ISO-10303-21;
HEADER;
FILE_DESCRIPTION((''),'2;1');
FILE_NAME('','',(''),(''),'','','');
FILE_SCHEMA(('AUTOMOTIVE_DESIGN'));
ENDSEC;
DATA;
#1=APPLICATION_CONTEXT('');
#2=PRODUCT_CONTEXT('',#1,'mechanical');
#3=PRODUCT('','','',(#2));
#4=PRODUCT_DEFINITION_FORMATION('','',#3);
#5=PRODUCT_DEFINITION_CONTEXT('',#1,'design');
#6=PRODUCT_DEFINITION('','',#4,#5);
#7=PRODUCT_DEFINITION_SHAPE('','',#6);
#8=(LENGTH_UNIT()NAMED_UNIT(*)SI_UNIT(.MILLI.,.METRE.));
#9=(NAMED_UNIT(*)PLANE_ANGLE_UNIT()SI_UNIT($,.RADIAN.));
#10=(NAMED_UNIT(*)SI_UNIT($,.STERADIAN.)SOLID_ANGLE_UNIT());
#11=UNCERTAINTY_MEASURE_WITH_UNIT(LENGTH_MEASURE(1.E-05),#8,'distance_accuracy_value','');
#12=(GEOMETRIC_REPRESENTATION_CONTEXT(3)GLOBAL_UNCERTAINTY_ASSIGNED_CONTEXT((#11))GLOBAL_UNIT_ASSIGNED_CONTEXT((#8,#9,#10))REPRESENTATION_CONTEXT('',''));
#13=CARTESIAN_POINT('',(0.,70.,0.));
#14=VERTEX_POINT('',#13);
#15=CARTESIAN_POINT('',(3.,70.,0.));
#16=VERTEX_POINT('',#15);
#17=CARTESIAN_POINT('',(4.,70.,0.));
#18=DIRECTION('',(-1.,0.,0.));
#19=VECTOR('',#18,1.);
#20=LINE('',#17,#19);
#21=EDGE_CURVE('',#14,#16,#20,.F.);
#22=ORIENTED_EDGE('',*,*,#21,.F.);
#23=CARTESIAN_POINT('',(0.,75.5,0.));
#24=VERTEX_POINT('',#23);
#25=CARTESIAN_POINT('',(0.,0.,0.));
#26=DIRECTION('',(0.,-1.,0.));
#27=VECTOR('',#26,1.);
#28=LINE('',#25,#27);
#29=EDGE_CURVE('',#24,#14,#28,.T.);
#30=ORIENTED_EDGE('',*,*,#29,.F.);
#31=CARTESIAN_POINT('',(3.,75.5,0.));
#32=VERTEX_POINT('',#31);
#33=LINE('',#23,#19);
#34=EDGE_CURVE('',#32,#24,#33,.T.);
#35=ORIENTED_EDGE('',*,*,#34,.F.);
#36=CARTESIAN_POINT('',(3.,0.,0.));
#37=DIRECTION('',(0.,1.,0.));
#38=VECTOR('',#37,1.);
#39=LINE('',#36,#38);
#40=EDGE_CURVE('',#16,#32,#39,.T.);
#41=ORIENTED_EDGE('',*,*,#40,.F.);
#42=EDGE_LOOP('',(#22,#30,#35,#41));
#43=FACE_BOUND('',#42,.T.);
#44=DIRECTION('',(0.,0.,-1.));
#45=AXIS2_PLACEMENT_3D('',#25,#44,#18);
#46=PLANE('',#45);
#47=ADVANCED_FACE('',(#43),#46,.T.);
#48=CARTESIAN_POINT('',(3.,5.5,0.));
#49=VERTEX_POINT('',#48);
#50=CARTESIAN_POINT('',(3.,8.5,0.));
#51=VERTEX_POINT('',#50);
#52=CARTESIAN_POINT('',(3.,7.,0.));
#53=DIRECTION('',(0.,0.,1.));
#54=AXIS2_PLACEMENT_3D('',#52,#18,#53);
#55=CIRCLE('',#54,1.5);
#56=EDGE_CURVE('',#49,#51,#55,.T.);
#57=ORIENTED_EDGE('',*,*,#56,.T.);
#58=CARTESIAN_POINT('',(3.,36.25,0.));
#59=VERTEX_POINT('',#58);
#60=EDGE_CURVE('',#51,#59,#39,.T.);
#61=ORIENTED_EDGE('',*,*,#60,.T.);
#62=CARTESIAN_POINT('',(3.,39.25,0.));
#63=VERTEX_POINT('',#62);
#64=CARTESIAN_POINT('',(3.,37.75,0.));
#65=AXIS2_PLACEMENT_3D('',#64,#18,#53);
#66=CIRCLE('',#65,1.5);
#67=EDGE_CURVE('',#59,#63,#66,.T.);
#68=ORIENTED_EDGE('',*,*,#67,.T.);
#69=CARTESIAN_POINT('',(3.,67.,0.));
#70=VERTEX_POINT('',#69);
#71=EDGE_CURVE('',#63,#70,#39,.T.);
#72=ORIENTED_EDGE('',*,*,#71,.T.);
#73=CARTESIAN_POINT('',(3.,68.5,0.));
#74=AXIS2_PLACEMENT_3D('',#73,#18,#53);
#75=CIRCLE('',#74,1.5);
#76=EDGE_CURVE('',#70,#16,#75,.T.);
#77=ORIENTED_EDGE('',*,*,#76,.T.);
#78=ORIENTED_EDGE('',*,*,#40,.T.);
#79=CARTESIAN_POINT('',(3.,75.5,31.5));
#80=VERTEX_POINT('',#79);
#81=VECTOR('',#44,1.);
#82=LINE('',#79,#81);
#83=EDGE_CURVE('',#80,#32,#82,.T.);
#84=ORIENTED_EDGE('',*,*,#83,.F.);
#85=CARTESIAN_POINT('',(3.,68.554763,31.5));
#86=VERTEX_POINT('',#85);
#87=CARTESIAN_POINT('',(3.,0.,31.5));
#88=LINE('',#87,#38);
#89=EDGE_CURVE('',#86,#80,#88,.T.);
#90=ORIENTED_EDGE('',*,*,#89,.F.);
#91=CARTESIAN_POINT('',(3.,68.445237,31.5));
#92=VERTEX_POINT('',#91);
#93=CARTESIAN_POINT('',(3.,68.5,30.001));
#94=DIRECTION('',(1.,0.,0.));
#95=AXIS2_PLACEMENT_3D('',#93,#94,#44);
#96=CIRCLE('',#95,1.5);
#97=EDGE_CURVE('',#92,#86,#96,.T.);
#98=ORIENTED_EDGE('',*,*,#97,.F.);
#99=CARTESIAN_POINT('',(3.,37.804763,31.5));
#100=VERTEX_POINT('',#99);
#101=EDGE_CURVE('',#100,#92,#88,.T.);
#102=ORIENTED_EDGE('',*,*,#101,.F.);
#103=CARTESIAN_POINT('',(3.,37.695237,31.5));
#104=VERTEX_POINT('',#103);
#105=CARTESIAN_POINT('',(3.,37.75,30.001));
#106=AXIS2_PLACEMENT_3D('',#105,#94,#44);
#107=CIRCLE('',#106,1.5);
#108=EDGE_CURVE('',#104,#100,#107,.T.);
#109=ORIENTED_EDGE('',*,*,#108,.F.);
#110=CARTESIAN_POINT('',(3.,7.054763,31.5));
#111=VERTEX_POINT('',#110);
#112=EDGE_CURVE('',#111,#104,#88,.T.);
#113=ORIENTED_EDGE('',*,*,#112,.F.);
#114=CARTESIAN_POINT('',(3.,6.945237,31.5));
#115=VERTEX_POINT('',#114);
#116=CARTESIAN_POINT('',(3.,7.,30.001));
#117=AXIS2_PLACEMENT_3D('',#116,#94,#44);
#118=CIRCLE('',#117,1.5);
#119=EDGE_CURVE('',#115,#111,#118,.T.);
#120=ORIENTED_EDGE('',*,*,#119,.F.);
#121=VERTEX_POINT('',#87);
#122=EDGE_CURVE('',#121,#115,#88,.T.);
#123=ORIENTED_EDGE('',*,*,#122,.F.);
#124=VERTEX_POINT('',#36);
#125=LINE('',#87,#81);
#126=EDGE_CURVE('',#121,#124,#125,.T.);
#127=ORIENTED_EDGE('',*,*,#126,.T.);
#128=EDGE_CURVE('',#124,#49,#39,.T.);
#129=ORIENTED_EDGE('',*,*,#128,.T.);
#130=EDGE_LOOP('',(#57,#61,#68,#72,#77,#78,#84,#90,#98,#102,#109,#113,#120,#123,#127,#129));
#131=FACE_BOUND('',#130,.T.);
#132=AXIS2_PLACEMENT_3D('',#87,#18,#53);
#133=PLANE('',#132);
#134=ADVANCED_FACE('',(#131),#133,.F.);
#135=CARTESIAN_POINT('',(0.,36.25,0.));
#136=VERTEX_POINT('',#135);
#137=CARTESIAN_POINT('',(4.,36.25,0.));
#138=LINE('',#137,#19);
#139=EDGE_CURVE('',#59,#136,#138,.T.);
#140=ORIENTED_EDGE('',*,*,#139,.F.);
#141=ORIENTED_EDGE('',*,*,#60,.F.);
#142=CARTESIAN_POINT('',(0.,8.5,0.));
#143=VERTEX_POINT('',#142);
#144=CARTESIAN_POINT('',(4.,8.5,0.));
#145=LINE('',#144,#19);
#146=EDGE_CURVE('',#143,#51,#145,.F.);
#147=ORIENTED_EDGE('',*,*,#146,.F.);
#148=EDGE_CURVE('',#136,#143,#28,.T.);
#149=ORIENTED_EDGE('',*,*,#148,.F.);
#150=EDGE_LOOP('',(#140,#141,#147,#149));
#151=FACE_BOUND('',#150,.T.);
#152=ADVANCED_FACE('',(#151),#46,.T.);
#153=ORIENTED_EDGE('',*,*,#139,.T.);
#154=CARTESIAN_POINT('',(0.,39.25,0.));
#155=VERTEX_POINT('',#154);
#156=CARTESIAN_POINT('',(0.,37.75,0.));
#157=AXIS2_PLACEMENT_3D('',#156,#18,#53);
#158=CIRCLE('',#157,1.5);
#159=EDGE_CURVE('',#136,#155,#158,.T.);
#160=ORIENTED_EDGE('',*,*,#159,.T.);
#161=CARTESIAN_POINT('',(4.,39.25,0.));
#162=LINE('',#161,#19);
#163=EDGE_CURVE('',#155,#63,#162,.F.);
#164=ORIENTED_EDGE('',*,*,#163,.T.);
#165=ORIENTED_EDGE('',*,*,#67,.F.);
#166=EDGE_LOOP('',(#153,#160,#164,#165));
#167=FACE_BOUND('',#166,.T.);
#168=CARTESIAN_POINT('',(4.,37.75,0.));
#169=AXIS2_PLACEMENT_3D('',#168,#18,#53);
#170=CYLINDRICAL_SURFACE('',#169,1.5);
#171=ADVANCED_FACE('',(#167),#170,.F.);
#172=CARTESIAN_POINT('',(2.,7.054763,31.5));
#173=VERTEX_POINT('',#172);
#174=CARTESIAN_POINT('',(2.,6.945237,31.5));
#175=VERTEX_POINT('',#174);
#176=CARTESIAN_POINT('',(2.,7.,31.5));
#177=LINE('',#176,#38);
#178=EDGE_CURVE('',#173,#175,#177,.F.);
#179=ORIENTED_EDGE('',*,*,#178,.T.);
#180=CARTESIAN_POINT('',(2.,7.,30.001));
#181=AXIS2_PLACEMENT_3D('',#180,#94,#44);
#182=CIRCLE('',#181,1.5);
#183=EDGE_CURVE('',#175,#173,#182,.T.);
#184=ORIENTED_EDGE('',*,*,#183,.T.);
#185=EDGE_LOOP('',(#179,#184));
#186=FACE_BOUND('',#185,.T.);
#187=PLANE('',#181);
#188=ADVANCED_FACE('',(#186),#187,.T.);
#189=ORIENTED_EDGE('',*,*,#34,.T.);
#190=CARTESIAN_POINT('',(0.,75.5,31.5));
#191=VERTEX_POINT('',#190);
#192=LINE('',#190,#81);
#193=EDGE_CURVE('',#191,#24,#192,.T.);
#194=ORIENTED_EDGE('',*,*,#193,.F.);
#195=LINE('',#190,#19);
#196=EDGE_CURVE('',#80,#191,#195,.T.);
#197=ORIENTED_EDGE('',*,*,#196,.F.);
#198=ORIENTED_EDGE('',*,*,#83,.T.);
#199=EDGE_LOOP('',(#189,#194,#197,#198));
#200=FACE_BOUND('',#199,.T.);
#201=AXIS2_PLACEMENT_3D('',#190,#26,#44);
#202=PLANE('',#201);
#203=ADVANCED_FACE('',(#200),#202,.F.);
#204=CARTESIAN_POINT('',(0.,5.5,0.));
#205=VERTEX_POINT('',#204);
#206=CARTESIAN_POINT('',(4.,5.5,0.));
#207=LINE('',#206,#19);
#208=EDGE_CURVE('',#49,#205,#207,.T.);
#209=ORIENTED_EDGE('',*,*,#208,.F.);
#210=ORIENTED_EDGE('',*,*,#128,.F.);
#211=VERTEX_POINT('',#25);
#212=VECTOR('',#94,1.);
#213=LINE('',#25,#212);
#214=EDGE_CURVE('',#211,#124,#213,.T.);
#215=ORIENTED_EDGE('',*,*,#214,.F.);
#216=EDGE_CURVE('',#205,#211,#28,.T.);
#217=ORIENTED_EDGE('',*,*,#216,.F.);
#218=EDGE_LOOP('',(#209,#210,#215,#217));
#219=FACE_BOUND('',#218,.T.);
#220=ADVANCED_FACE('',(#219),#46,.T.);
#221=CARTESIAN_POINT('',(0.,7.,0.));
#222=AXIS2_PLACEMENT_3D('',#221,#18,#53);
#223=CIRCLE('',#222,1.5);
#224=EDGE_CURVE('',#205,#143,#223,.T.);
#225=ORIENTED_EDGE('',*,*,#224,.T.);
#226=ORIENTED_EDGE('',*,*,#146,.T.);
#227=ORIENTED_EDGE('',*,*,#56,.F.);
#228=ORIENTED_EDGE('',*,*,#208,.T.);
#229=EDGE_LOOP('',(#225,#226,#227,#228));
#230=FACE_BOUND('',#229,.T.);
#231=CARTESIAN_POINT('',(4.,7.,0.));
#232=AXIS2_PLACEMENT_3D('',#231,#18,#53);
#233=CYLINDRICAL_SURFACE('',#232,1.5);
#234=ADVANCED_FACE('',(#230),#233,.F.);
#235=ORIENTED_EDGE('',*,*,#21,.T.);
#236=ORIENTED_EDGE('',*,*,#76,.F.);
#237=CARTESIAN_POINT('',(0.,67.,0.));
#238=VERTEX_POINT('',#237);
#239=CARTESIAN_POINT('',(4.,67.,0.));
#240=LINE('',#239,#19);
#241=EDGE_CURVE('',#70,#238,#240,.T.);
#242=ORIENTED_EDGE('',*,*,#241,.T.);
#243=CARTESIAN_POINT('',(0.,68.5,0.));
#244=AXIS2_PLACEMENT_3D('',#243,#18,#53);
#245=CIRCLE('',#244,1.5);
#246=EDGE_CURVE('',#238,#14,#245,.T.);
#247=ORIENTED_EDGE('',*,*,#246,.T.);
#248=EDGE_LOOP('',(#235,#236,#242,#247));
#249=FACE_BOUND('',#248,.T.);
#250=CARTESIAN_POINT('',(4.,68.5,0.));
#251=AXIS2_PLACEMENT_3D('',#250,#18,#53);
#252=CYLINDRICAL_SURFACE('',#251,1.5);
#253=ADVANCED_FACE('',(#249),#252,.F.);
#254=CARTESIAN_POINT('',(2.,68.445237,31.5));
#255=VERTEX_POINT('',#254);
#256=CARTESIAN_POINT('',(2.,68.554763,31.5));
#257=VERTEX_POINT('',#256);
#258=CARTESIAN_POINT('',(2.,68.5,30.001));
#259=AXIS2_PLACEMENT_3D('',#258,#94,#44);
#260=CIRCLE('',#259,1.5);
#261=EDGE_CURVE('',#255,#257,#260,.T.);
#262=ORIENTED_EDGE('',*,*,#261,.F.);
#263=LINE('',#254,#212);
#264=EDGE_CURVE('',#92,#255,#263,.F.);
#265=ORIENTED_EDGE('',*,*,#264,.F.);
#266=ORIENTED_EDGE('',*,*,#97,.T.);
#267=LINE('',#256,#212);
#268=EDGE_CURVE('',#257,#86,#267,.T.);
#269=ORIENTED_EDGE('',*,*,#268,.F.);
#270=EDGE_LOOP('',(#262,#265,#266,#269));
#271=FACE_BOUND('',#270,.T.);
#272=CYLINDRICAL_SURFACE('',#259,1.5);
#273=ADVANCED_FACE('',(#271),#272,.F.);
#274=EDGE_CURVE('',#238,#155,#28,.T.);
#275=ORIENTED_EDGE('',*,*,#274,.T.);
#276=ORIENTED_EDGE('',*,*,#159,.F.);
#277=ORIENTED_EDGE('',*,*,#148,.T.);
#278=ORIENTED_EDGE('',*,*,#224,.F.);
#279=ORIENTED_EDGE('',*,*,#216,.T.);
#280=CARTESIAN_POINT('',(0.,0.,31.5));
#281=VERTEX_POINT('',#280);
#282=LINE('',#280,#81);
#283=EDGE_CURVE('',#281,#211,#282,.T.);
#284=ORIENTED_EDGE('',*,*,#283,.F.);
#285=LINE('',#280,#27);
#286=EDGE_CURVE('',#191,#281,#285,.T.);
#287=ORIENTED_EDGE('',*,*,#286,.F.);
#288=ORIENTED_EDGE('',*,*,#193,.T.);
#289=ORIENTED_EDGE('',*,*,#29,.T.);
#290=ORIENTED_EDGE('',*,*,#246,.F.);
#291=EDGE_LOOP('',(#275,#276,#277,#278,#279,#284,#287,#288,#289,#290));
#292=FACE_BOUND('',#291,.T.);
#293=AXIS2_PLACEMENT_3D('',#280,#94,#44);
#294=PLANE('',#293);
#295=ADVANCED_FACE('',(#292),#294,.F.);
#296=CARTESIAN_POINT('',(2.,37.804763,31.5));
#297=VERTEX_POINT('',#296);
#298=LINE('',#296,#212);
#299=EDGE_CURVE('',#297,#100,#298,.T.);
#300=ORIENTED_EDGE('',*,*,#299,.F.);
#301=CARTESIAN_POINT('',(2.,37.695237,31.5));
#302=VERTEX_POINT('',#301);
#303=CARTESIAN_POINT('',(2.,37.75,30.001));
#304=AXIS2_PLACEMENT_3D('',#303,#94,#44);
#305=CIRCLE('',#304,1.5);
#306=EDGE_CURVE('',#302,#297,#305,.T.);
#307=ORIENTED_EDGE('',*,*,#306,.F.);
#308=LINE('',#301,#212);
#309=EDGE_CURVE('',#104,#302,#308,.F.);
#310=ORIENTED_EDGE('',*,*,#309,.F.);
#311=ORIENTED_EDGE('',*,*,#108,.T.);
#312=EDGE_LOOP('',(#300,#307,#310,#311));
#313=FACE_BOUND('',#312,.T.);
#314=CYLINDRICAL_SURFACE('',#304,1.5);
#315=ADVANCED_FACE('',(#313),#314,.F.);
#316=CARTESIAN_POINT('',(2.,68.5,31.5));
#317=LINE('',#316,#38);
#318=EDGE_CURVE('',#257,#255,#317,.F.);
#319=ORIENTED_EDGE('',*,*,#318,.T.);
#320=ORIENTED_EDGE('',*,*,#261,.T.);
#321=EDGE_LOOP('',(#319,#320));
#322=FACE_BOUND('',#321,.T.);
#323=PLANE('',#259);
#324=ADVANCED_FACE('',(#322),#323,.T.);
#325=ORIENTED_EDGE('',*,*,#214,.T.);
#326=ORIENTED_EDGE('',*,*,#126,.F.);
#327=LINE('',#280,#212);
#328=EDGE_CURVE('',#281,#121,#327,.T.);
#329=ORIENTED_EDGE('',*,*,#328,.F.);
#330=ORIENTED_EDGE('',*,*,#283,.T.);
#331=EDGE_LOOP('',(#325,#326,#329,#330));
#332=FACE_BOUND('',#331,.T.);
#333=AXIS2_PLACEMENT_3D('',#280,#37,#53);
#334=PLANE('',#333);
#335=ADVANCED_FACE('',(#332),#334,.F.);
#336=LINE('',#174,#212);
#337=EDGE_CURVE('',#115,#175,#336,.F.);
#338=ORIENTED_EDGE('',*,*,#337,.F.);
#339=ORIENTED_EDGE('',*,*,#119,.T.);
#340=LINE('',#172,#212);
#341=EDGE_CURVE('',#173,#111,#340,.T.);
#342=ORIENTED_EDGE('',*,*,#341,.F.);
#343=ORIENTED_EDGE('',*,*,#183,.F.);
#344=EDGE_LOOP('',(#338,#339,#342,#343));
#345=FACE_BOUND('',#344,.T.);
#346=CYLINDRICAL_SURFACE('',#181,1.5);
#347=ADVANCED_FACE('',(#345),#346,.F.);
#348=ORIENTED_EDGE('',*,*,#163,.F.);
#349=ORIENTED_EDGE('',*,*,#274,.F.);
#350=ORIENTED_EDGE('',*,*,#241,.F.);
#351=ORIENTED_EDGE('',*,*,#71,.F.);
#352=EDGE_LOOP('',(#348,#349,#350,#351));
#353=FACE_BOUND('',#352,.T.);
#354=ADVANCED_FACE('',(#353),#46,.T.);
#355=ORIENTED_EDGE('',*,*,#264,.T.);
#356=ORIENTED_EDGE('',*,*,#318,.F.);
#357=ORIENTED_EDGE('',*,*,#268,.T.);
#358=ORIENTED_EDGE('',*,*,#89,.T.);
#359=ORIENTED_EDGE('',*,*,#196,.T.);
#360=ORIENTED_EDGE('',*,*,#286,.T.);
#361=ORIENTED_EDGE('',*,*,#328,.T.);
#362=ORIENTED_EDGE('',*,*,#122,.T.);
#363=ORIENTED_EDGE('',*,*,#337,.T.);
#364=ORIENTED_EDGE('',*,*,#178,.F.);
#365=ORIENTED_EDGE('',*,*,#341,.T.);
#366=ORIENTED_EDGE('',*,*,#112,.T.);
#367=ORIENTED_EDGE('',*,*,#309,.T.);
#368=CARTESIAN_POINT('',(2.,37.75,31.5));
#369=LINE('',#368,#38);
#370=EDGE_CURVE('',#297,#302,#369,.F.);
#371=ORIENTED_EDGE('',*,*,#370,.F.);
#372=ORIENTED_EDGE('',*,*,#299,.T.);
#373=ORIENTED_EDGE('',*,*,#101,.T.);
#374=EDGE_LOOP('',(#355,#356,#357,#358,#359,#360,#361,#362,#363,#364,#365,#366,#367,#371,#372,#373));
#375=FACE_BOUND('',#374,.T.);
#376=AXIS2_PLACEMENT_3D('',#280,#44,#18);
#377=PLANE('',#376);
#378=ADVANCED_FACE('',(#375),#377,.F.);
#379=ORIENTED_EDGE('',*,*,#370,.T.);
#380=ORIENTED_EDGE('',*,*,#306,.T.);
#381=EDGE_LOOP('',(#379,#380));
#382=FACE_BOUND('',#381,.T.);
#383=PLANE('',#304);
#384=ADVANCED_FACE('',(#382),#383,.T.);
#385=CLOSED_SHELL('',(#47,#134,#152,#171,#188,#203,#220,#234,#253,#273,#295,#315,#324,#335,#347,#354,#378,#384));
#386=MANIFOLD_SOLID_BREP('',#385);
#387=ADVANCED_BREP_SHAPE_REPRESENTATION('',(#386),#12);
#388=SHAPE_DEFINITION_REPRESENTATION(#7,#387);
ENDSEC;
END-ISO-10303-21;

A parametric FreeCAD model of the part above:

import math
import FreeCAD as App
import Part
import Sketcher
from FreeCAD import Vector
Q = App.Units.Quantity

doc = App.newDocument("Part")
params = doc.addObject("Spreadsheet::Sheet", "Params")
for row, (alias, value) in enumerate([
    ("sketch1_width", "3 mm"),
    ("sketch1_height", "74 mm"),
    ("pad1_length", "31.5 mm"),
    ("sketch2_width", "3 mm"),
    ("sketch2_height", "1.5 mm"),
    ("pad2_length", "31.5 mm"),
    ("sketch3_diameter", "3 mm"),
    ("pocket1_length", "1 mm"),
    ("sketch4_radius", "1.5 mm"),
    ("pocket2_length", "4 mm"),
], start=1):
    params.set(f"A{row}", alias)
    params.set(f"B{row}", "=" + value)
    params.setAlias(f"B{row}", alias)

body = doc.addObject("PartDesign::Body", "Body")

# Sketch on XY plane
sketch1 = body.newObject("Sketcher::SketchObject", "Sketch")
sketch1.AttachmentSupport = (doc.getObject("XY_Plane"), [""])
sketch1.MapMode = "FlatFace"
sketch1.addGeometry([
    Part.LineSegment(Vector(0, 74, 0), Vector(0, 0, 0)),
    Part.LineSegment(Vector(0, 0, 0), Vector(3, 0, 0)),
    Part.LineSegment(Vector(3, 0, 0), Vector(3, 74, 0)),
    Part.LineSegment(Vector(3, 74, 0), Vector(0, 74, 0)),
], False)
sketch1.addConstraint([
    Sketcher.Constraint("Coincident", 0, 2, 1, 1),
    Sketcher.Constraint("Coincident", 1, 2, 2, 1),
    Sketcher.Constraint("Coincident", 2, 2, 3, 1),
    Sketcher.Constraint("Coincident", 3, 2, 0, 1),
    Sketcher.Constraint("Vertical", 0),
    Sketcher.Constraint("Horizontal", 1),
    Sketcher.Constraint("Vertical", 2),
    Sketcher.Constraint("Horizontal", 3),
    Sketcher.Constraint("Coincident", 0, 2, -1, 1),
    Sketcher.Constraint("DistanceX", 1, 1, 1, 2, Q("3 mm")),
    Sketcher.Constraint("DistanceY", 0, 2, 0, 1, Q("74 mm")),
])
sketch1.setExpression("Constraints[9]", "Params.sketch1_width")
sketch1.setExpression("Constraints[10]", "Params.sketch1_height")
pad1 = body.newObject("PartDesign::Pad", "Pad")
pad1.Profile = sketch1
pad1.setExpression("Length", "Params.pad1_length")

# Sketch on XY plane
sketch2 = body.newObject("Sketcher::SketchObject", "Sketch001")
sketch2.AttachmentSupport = (doc.getObject("XY_Plane"), [""])
sketch2.MapMode = "FlatFace"
sketch2.addGeometry([
    Part.LineSegment(Vector(0, 75.5, 0), Vector(0, 74, 0)),
    Part.LineSegment(Vector(0, 74, 0), Vector(3, 74, 0)),
    Part.LineSegment(Vector(3, 74, 0), Vector(3, 75.5, 0)),
    Part.LineSegment(Vector(3, 75.5, 0), Vector(0, 75.5, 0)),
], False)
sketch2.addConstraint([
    Sketcher.Constraint("Coincident", 0, 2, 1, 1),
    Sketcher.Constraint("Coincident", 1, 2, 2, 1),
    Sketcher.Constraint("Coincident", 2, 2, 3, 1),
    Sketcher.Constraint("Coincident", 3, 2, 0, 1),
    Sketcher.Constraint("Vertical", 0),
    Sketcher.Constraint("Horizontal", 1),
    Sketcher.Constraint("Vertical", 2),
    Sketcher.Constraint("Horizontal", 3),
    Sketcher.Constraint("PointOnObject", 0, 2, -2),
    Sketcher.Constraint("DistanceX", 1, 1, 1, 2, Q("3 mm")),
    Sketcher.Constraint("DistanceY", 0, 2, 0, 1, Q("1.5 mm")),
    Sketcher.Constraint("DistanceY", -1, 1, 0, 2, Q("74 mm")),
])
sketch2.setExpression("Constraints[9]", "Params.sketch2_width")
sketch2.setExpression("Constraints[10]", "Params.sketch2_height")
pad2 = body.newObject("PartDesign::Pad", "Pad001")
pad2.Profile = sketch2
pad2.setExpression("Length", "Params.pad2_length")

# Sketch on YZ plane
sketch3 = body.newObject("Sketcher::SketchObject", "Sketch002")
sketch3.AttachmentSupport = (doc.getObject("YZ_Plane"), [""])
sketch3.MapMode = "FlatFace"
sketch3.AttachmentOffset = App.Placement(Vector(0, 0, 3), App.Rotation())
sketch3.addGeometry([
    Part.Circle(Vector(7, 30.001, 0), Vector(0, 0, 1), 1.5),
    Part.Circle(Vector(37.75, 30.001, 0), Vector(0, 0, 1), 1.5),
    Part.Circle(Vector(68.5, 30.001, 0), Vector(0, 0, 1), 1.5),
], False)
sketch3.addConstraint([
    Sketcher.Constraint("Equal", 0, 1),
    Sketcher.Constraint("Equal", 1, 2),
    Sketcher.Constraint("Horizontal", 0, 3, 1, 3),
    Sketcher.Constraint("Horizontal", 1, 3, 2, 3),
    Sketcher.Constraint("Diameter", 0, Q("3 mm")),
    Sketcher.Constraint("DistanceX", -1, 1, 0, 3, Q("7 mm")),
    Sketcher.Constraint("DistanceX", -1, 1, 2, 3, Q("68.5 mm")),
    Sketcher.Constraint("DistanceX", -1, 1, 1, 3, Q("37.75 mm")),
    Sketcher.Constraint("DistanceY", -1, 1, 0, 3, Q("30.001 mm")),
])
sketch3.setExpression("Constraints[4]", "Params.sketch3_diameter")
pocket1 = body.newObject("PartDesign::Pocket", "Pocket")
pocket1.Profile = sketch3
pocket1.setExpression("Length", "Params.pocket1_length")

# Sketch on YZ plane
sketch4 = body.newObject("Sketcher::SketchObject", "Sketch003")
sketch4.AttachmentSupport = (doc.getObject("YZ_Plane"), [""])
sketch4.MapMode = "FlatFace"
sketch4.addGeometry([
    Part.LineSegment(Vector(8.5, 0, 0), Vector(5.5, 0, 0)),  # 0
    Part.ArcOfCircle(Part.Circle(Vector(7, 0, 0), Vector(0, 0, 1), 1.5), math.radians(0), math.radians(180)),  # 1
    Part.LineSegment(Vector(39.25, 0, 0), Vector(36.25, 0, 0)),  # 2
    Part.ArcOfCircle(Part.Circle(Vector(37.75, 0, 0), Vector(0, 0, 1), 1.5), math.radians(0), math.radians(180)),  # 3
    Part.LineSegment(Vector(70, 0, 0), Vector(67, 0, 0)),  # 4
    Part.ArcOfCircle(Part.Circle(Vector(68.5, 0, 0), Vector(0, 0, 1), 1.5), math.radians(0), math.radians(180)),  # 5
], False)
sketch4.addConstraint([
    Sketcher.Constraint("Coincident", 0, 1, 1, 1),
    Sketcher.Constraint("Coincident", 1, 2, 0, 2),
    Sketcher.Constraint("Coincident", 2, 1, 3, 1),
    Sketcher.Constraint("Coincident", 3, 2, 2, 2),
    Sketcher.Constraint("Coincident", 4, 1, 5, 1),
    Sketcher.Constraint("Coincident", 5, 2, 4, 2),
    Sketcher.Constraint("Horizontal", 0),
    Sketcher.Constraint("Horizontal", 2),
    Sketcher.Constraint("Horizontal", 4),
    Sketcher.Constraint("Equal", 1, 3),
    Sketcher.Constraint("Equal", 3, 5),
    Sketcher.Constraint("PointOnObject", 1, 3, -1),
    Sketcher.Constraint("PointOnObject", 3, 3, -1),
    Sketcher.Constraint("PointOnObject", 5, 3, -1),
    Sketcher.Constraint("PointOnObject", 0, 1, -1),
    Sketcher.Constraint("PointOnObject", 2, 1, -1),
    Sketcher.Constraint("PointOnObject", 4, 1, -1),
    Sketcher.Constraint("Radius", 1, Q("1.5 mm")),
    Sketcher.Constraint("DistanceX", -1, 1, 1, 3, Q("7 mm")),
    Sketcher.Constraint("DistanceX", -1, 1, 4, 1, Q("70 mm")),
    Sketcher.Constraint("DistanceX", -1, 1, 3, 3, Q("37.75 mm")),
])
sketch4.setExpression("Constraints[17]", "Params.sketch4_radius")
pocket2 = body.newObject("PartDesign::Pocket", "Pocket001")
pocket2.Profile = sketch4
pocket2.setExpression("Length", "Params.pocket2_length")
pocket2.Reversed = True

doc.recompute()
